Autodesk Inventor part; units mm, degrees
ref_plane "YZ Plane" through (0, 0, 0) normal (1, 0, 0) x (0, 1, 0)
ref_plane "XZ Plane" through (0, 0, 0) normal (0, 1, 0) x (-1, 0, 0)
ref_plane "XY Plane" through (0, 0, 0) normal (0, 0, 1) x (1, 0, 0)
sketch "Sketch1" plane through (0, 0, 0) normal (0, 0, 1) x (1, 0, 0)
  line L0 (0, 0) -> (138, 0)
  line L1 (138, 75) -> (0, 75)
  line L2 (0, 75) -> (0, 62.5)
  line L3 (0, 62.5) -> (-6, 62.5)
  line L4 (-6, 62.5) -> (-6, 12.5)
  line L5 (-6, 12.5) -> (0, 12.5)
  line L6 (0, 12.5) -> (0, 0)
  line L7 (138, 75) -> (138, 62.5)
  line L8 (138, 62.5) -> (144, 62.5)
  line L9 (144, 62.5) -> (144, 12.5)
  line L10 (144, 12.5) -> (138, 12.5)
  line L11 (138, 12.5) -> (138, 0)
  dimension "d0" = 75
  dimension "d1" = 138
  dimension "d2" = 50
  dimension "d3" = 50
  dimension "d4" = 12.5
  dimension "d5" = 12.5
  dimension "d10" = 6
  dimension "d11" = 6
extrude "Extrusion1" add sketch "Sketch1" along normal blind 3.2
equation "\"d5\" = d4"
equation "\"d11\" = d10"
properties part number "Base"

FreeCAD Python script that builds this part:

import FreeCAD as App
import Part
import Sketcher
from FreeCAD import Vector

doc = App.newDocument("Part")
body = doc.addObject("PartDesign::Body", "Body")

# Sketch on XY plane
sketch1 = body.newObject("Sketcher::SketchObject", "Sketch")
sketch1.AttachmentSupport = (doc.getObject("XY_Plane"), [""])
sketch1.MapMode = "FlatFace"
sketch1.addGeometry([
    Part.LineSegment(Vector(0, 12, 0), Vector(0, 0, 0)),  # 0
    Part.LineSegment(Vector(0, 0, 0), Vector(138, 0, 0)),  # 1
    Part.LineSegment(Vector(138, 0, 0), Vector(138, 12, 0)),  # 2
    Part.LineSegment(Vector(138, 12, 0), Vector(144, 12, 0)),  # 3
    Part.LineSegment(Vector(144, 12, 0), Vector(144, 62, 0)),  # 4
    Part.LineSegment(Vector(144, 62, 0), Vector(138, 62, 0)),  # 5
    Part.LineSegment(Vector(138, 62, 0), Vector(138, 75, 0)),  # 6
    Part.LineSegment(Vector(138, 75, 0), Vector(0, 75, 0)),  # 7
    Part.LineSegment(Vector(0, 75, 0), Vector(0, 62, 0)),  # 8
    Part.LineSegment(Vector(0, 62, 0), Vector(-6, 62, 0)),  # 9
    Part.LineSegment(Vector(-6, 62, 0), Vector(-6, 12, 0)),  # 10
    Part.LineSegment(Vector(-6, 12, 0), Vector(0, 12, 0)),  # 11
], False)
sketch1.addConstraint([
    Sketcher.Constraint("Coincident", 0, 2, 1, 1),
    Sketcher.Constraint("Coincident", 1, 2, 2, 1),
    Sketcher.Constraint("Coincident", 2, 2, 3, 1),
    Sketcher.Constraint("Coincident", 3, 2, 4, 1),
    Sketcher.Constraint("Coincident", 4, 2, 5, 1),
    Sketcher.Constraint("Coincident", 5, 2, 6, 1),
    Sketcher.Constraint("Coincident", 6, 2, 7, 1),
    Sketcher.Constraint("Coincident", 7, 2, 8, 1),
    Sketcher.Constraint("Coincident", 8, 2, 9, 1),
    Sketcher.Constraint("Coincident", 9, 2, 10, 1),
    Sketcher.Constraint("Coincident", 10, 2, 11, 1),
    Sketcher.Constraint("Coincident", 11, 2, 0, 1),
    Sketcher.Constraint("Vertical", 0),
    Sketcher.Constraint("Horizontal", 1),
    Sketcher.Constraint("Vertical", 2),
    Sketcher.Constraint("Horizontal", 3),
    Sketcher.Constraint("Vertical", 4),
    Sketcher.Constraint("Horizontal", 5),
    Sketcher.Constraint("Vertical", 6),
    Sketcher.Constraint("Horizontal", 7),
    Sketcher.Constraint("Vertical", 8),
    Sketcher.Constraint("Horizontal", 9),
    Sketcher.Constraint("Vertical", 10),
    Sketcher.Constraint("Horizontal", 11),
    Sketcher.Constraint("Coincident", 0, 2, -1, 1),
    Sketcher.Constraint("PointOnObject", 7, 2, -2),
    Sketcher.Constraint("Horizontal", 5, 2, 8, 2),
    Sketcher.Constraint("Horizontal", 3, 2, 10, 2),
    Sketcher.Constraint("Vertical", 2, 2, 5, 2),
    Sketcher.Constraint("Equal", 5, 9),
    Sketcher.Constraint("Equal", 2, 6),
    Sketcher.Constraint("DistanceX", 1, 1, 1, 2, 138.0),
    Sketcher.Constraint("DistanceX", 3, 1, 3, 2, 6.0),
    Sketcher.Constraint("DistanceY", 4, 1, 4, 2, 50.0),
    Sketcher.Constraint("DistanceY", 0, 2, 0, 1, 12.5),
])
pad1 = body.newObject("PartDesign::Pad", "Pad")
pad1.Profile = sketch1
pad1.Length = 3.2

doc.recompute()
